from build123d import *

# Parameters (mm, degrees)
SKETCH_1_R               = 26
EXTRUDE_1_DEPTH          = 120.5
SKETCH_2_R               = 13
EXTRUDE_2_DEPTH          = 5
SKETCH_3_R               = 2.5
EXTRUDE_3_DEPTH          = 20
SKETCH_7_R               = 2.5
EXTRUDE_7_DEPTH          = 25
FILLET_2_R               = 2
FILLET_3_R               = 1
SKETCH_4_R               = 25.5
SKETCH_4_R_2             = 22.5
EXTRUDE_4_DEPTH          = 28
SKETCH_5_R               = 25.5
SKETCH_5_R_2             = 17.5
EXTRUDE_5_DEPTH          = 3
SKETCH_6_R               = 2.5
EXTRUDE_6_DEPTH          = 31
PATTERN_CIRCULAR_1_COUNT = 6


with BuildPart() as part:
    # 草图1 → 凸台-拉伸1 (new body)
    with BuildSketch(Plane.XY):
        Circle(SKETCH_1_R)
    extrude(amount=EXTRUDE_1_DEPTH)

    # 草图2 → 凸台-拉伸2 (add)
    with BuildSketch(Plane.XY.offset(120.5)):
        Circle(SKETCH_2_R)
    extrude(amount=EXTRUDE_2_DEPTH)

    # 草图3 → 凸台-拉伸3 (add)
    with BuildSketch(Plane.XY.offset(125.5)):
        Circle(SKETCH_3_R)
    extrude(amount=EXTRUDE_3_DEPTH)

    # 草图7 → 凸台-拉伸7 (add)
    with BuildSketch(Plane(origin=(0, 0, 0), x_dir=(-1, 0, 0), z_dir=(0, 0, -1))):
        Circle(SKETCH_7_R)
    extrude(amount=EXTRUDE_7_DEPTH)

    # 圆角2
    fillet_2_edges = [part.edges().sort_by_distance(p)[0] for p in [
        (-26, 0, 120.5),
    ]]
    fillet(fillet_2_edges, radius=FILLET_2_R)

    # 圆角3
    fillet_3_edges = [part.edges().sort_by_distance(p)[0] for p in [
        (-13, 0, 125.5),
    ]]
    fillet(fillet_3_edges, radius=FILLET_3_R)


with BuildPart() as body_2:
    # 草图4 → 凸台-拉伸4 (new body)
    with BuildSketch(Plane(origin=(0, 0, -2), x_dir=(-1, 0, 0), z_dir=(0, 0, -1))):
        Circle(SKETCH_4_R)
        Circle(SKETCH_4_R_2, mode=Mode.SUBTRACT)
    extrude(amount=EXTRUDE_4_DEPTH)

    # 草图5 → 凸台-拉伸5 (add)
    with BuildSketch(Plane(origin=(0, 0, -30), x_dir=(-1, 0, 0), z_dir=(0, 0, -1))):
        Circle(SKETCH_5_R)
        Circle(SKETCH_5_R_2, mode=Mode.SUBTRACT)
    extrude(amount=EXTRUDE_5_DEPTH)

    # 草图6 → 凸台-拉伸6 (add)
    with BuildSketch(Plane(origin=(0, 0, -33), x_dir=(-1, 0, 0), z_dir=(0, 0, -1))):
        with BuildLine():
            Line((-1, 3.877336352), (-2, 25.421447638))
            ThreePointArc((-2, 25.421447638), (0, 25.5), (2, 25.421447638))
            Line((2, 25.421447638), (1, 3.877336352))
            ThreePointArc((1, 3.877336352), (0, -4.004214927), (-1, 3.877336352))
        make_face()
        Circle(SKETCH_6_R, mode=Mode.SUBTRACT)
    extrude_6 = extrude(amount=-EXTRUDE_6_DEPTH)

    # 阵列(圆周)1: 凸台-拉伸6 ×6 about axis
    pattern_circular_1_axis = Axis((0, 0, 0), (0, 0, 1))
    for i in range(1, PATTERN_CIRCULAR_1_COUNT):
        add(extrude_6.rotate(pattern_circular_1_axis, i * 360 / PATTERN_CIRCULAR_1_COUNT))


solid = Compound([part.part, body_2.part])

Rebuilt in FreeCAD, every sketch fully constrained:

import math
import FreeCAD as App
import Part
import Sketcher
from FreeCAD import Vector


def edges_at(feature, points):
    """Names of the edges that pass closest to the given points."""
    edges = feature.Shape.Edges
    near = lambda p: min(range(len(edges)), key=lambda i: edges[i].distToShape(Part.Vertex(*p))[0])
    return sorted({f"Edge{near(p) + 1}" for p in points})

doc = App.newDocument("Part")
params = doc.addObject("Spreadsheet::Sheet", "Params")
for row, (alias, value) in enumerate([
    ("sketch1_diameter", "52 mm"),
    ("pad1_length", "120.5 mm"),
    ("sketch2_diameter", "26 mm"),
    ("pad2_length", "5 mm"),
    ("sketch3_diameter", "5 mm"),
    ("pad3_length", "20 mm"),
    ("sketch4_diameter", "5 mm"),
    ("pad4_length", "25 mm"),
    ("fillet_radius", "2 mm"),
    ("fillet2_radius", "1 mm"),
    ("sketch5_diameter", "51 mm"),
    ("sketch5_diameter2", "45 mm"),
    ("pad5_length", "28 mm"),
    ("sketch6_diameter", "51 mm"),
    ("sketch6_diameter2", "35 mm"),
    ("pad6_length", "3 mm"),
    ("sketch7_diameter", "5 mm"),
    ("sketch7_radius", "25.5 mm"),
    ("pad7_length", "31 mm"),
], start=1):
    params.set(f"A{row}", alias)
    params.set(f"B{row}", "=" + value)
    params.setAlias(f"B{row}", alias)

body = doc.addObject("PartDesign::Body", "Body")

sketch1 = doc.addObject("Sketcher::SketchObject", "Sketch")
body.addObject(sketch1)
sketch1.AttachmentSupport = (doc.XY_Plane, [""])
sketch1.MapMode = "FlatFace"
sketch1.addGeometry(Part.Circle(Vector(0, 0, 0), Vector(0, 0, 1), 26), False)
sketch1.addConstraint([
    Sketcher.Constraint("Coincident", 0, 3, -1, 1),
    Sketcher.Constraint("Diameter", 0, 52.0),
])
sketch1.setExpression("Constraints[1]", "Params.sketch1_diameter")
pad1 = doc.addObject("PartDesign::Pad", "Pad")
body.addObject(pad1)
pad1.Profile = sketch1
pad1.setExpression("Length", "Params.pad1_length")

sketch2 = doc.addObject("Sketcher::SketchObject", "Sketch001")
body.addObject(sketch2)
sketch2.AttachmentSupport = (doc.XY_Plane, [""])
sketch2.MapMode = "FlatFace"
sketch2.AttachmentOffset = App.Placement(Vector(0, 0, 120.5), App.Rotation())
sketch2.addGeometry(Part.Circle(Vector(0, 0, 0), Vector(0, 0, 1), 13), False)
sketch2.addConstraint([
    Sketcher.Constraint("Coincident", 0, 3, -1, 1),
    Sketcher.Constraint("Diameter", 0, 26.0),
])
sketch2.setExpression("Constraints[1]", "Params.sketch2_diameter")
pad2 = doc.addObject("PartDesign::Pad", "Pad001")
body.addObject(pad2)
pad2.Profile = sketch2
pad2.setExpression("Length", "Params.pad2_length")

sketch3 = doc.addObject("Sketcher::SketchObject", "Sketch002")
body.addObject(sketch3)
sketch3.AttachmentSupport = (doc.XY_Plane, [""])
sketch3.MapMode = "FlatFace"
sketch3.AttachmentOffset = App.Placement(Vector(0, 0, 125.5), App.Rotation())
sketch3.addGeometry(Part.Circle(Vector(0, 0, 0), Vector(0, 0, 1), 2.5), False)
sketch3.addConstraint([
    Sketcher.Constraint("Coincident", 0, 3, -1, 1),
    Sketcher.Constraint("Diameter", 0, 5.0),
])
sketch3.setExpression("Constraints[1]", "Params.sketch3_diameter")
pad3 = doc.addObject("PartDesign::Pad", "Pad002")
body.addObject(pad3)
pad3.Profile = sketch3
pad3.setExpression("Length", "Params.pad3_length")

sketch4 = doc.addObject("Sketcher::SketchObject", "Sketch003")
body.addObject(sketch4)
sketch4.AttachmentSupport = (doc.XY_Plane, [""])
sketch4.MapMode = "FlatFace"
sketch4.addGeometry(Part.Circle(Vector(0, 0, 0), Vector(0, 0, 1), 2.5), False)
sketch4.addConstraint([
    Sketcher.Constraint("Coincident", 0, 3, -1, 1),
    Sketcher.Constraint("Diameter", 0, 5.0),
])
sketch4.setExpression("Constraints[1]", "Params.sketch4_diameter")
pad4 = doc.addObject("PartDesign::Pad", "Pad003")
body.addObject(pad4)
pad4.Profile = sketch4
pad4.setExpression("Length", "Params.pad4_length")
pad4.Reversed = True
doc.recompute()

fillet = doc.addObject("PartDesign::Fillet", "Fillet")
body.addObject(fillet)
fillet.Base = (pad4, edges_at(pad4, [(-26, 0, 120.5)]))
fillet.setExpression("Radius", "Params.fillet_radius")
doc.recompute()

fillet2 = doc.addObject("PartDesign::Fillet", "Fillet001")
body.addObject(fillet2)
fillet2.Base = (fillet, edges_at(fillet, [(-13, 0, 125.5)]))
fillet2.setExpression("Radius", "Params.fillet2_radius")
body2 = doc.addObject("PartDesign::Body", "Body001")

sketch5 = doc.addObject("Sketcher::SketchObject", "Sketch004")
body2.addObject(sketch5)
sketch5.AttachmentSupport = (doc.getObject("XY_Plane001"), [""])
sketch5.MapMode = "FlatFace"
sketch5.AttachmentOffset = App.Placement(Vector(0, 0, -2), App.Rotation())
sketch5.addGeometry([
    Part.Circle(Vector(0, 0, 0), Vector(0, 0, 1), 26),
    Part.Circle(Vector(0, 0, 0), Vector(0, 0, 1), 22),
], False)
sketch5.addConstraint([
    Sketcher.Constraint("Coincident", 0, 3, -1, 1),
    Sketcher.Constraint("Coincident", 1, 3, -1, 1),
    Sketcher.Constraint("Diameter", 0, 51.0),
    Sketcher.Constraint("Diameter", 1, 45.0),
])
sketch5.setExpression("Constraints[2]", "Params.sketch5_diameter")
sketch5.setExpression("Constraints[3]", "Params.sketch5_diameter2")
pad5 = doc.addObject("PartDesign::Pad", "Pad004")
body2.addObject(pad5)
pad5.Profile = sketch5
pad5.setExpression("Length", "Params.pad5_length")
pad5.Reversed = True

sketch6 = doc.addObject("Sketcher::SketchObject", "Sketch005")
body2.addObject(sketch6)
sketch6.AttachmentSupport = (doc.getObject("XY_Plane001"), [""])
sketch6.MapMode = "FlatFace"
sketch6.AttachmentOffset = App.Placement(Vector(0, 0, -30), App.Rotation())
sketch6.addGeometry([
    Part.Circle(Vector(0, 0, 0), Vector(0, 0, 1), 26),
    Part.Circle(Vector(0, 0, 0), Vector(0, 0, 1), 18),
], False)
sketch6.addConstraint([
    Sketcher.Constraint("Coincident", 0, 3, -1, 1),
    Sketcher.Constraint("Coincident", 1, 3, -1, 1),
    Sketcher.Constraint("Diameter", 0, 51.0),
    Sketcher.Constraint("Diameter", 1, 35.0),
])
sketch6.setExpression("Constraints[2]", "Params.sketch6_diameter")
sketch6.setExpression("Constraints[3]", "Params.sketch6_diameter2")
pad6 = doc.addObject("PartDesign::Pad", "Pad005")
body2.addObject(pad6)
pad6.Profile = sketch6
pad6.setExpression("Length", "Params.pad6_length")
pad6.Reversed = True

sketch7 = doc.addObject("Sketcher::SketchObject", "Sketch006")
body2.addObject(sketch7)
sketch7.AttachmentSupport = (doc.getObject("XY_Plane001"), [""])
sketch7.MapMode = "FlatFace"
sketch7.AttachmentOffset = App.Placement(Vector(0, 0, -33), App.Rotation())
sketch7.addGeometry([
    Part.LineSegment(Vector(2, 25.4, 0), Vector(1, 3.9, 0)),
    Part.ArcOfCircle(Part.Circle(Vector(0, 0, 0), Vector(0, 0, 1), 4), math.radians(104), math.radians(436)),
    Part.LineSegment(Vector(-1, 3.9, 0), Vector(-2, 25.4, 0)),
    Part.ArcOfCircle(Part.Circle(Vector(0, 0, 0), Vector(0, 0, 1), 25.5), math.radians(85.5), math.radians(94.5)),
    Part.Circle(Vector(0, 0, 0), Vector(0, 0, 1), 2.5),
], False)
sketch7.addConstraint([
    Sketcher.Constraint("Coincident", 0, 2, 1, 2),
    Sketcher.Constraint("Coincident", 1, 1, 2, 1),
    Sketcher.Constraint("Coincident", 2, 2, 3, 2),
    Sketcher.Constraint("Coincident", 3, 1, 0, 1),
    Sketcher.Constraint("Coincident", 1, 3, -1, 1),
    Sketcher.Constraint("Coincident", 3, 3, -1, 1),
    Sketcher.Constraint("Coincident", 4, 3, -1, 1),
    Sketcher.Constraint("Horizontal", 0, 2, 1, 1),
    Sketcher.Constraint("Horizontal", 2, 2, 3, 1),
    Sketcher.Constraint("Diameter", 4, 5.0),
    Sketcher.Constraint("Radius", 3, 25.5),
    Sketcher.Constraint("DistanceX", -1, 1, 0, 2, 1.0),
    Sketcher.Constraint("DistanceX", 2, 2, -1, 1, 2.0),
    Sketcher.Constraint("Radius", 1, 4.004215),
])
sketch7.setExpression("Constraints[9]", "Params.sketch7_diameter")
sketch7.setExpression("Constraints[10]", "Params.sketch7_radius")
pad7 = doc.addObject("PartDesign::Pad", "Pad006")
body2.addObject(pad7)
pad7.Profile = sketch7
pad7.setExpression("Length", "Params.pad7_length")
doc.recompute()

polarpattern = doc.addObject("PartDesign::PolarPattern", "PolarPattern")
body2.addObject(polarpattern)
polarpattern.Originals = [pad7]
polarpattern.Axis = (doc.getObject("Z_Axis001"), [""])
polarpattern.Angle = 360
polarpattern.Occurrences = 6
body2.Tip = polarpattern

doc.recompute()
